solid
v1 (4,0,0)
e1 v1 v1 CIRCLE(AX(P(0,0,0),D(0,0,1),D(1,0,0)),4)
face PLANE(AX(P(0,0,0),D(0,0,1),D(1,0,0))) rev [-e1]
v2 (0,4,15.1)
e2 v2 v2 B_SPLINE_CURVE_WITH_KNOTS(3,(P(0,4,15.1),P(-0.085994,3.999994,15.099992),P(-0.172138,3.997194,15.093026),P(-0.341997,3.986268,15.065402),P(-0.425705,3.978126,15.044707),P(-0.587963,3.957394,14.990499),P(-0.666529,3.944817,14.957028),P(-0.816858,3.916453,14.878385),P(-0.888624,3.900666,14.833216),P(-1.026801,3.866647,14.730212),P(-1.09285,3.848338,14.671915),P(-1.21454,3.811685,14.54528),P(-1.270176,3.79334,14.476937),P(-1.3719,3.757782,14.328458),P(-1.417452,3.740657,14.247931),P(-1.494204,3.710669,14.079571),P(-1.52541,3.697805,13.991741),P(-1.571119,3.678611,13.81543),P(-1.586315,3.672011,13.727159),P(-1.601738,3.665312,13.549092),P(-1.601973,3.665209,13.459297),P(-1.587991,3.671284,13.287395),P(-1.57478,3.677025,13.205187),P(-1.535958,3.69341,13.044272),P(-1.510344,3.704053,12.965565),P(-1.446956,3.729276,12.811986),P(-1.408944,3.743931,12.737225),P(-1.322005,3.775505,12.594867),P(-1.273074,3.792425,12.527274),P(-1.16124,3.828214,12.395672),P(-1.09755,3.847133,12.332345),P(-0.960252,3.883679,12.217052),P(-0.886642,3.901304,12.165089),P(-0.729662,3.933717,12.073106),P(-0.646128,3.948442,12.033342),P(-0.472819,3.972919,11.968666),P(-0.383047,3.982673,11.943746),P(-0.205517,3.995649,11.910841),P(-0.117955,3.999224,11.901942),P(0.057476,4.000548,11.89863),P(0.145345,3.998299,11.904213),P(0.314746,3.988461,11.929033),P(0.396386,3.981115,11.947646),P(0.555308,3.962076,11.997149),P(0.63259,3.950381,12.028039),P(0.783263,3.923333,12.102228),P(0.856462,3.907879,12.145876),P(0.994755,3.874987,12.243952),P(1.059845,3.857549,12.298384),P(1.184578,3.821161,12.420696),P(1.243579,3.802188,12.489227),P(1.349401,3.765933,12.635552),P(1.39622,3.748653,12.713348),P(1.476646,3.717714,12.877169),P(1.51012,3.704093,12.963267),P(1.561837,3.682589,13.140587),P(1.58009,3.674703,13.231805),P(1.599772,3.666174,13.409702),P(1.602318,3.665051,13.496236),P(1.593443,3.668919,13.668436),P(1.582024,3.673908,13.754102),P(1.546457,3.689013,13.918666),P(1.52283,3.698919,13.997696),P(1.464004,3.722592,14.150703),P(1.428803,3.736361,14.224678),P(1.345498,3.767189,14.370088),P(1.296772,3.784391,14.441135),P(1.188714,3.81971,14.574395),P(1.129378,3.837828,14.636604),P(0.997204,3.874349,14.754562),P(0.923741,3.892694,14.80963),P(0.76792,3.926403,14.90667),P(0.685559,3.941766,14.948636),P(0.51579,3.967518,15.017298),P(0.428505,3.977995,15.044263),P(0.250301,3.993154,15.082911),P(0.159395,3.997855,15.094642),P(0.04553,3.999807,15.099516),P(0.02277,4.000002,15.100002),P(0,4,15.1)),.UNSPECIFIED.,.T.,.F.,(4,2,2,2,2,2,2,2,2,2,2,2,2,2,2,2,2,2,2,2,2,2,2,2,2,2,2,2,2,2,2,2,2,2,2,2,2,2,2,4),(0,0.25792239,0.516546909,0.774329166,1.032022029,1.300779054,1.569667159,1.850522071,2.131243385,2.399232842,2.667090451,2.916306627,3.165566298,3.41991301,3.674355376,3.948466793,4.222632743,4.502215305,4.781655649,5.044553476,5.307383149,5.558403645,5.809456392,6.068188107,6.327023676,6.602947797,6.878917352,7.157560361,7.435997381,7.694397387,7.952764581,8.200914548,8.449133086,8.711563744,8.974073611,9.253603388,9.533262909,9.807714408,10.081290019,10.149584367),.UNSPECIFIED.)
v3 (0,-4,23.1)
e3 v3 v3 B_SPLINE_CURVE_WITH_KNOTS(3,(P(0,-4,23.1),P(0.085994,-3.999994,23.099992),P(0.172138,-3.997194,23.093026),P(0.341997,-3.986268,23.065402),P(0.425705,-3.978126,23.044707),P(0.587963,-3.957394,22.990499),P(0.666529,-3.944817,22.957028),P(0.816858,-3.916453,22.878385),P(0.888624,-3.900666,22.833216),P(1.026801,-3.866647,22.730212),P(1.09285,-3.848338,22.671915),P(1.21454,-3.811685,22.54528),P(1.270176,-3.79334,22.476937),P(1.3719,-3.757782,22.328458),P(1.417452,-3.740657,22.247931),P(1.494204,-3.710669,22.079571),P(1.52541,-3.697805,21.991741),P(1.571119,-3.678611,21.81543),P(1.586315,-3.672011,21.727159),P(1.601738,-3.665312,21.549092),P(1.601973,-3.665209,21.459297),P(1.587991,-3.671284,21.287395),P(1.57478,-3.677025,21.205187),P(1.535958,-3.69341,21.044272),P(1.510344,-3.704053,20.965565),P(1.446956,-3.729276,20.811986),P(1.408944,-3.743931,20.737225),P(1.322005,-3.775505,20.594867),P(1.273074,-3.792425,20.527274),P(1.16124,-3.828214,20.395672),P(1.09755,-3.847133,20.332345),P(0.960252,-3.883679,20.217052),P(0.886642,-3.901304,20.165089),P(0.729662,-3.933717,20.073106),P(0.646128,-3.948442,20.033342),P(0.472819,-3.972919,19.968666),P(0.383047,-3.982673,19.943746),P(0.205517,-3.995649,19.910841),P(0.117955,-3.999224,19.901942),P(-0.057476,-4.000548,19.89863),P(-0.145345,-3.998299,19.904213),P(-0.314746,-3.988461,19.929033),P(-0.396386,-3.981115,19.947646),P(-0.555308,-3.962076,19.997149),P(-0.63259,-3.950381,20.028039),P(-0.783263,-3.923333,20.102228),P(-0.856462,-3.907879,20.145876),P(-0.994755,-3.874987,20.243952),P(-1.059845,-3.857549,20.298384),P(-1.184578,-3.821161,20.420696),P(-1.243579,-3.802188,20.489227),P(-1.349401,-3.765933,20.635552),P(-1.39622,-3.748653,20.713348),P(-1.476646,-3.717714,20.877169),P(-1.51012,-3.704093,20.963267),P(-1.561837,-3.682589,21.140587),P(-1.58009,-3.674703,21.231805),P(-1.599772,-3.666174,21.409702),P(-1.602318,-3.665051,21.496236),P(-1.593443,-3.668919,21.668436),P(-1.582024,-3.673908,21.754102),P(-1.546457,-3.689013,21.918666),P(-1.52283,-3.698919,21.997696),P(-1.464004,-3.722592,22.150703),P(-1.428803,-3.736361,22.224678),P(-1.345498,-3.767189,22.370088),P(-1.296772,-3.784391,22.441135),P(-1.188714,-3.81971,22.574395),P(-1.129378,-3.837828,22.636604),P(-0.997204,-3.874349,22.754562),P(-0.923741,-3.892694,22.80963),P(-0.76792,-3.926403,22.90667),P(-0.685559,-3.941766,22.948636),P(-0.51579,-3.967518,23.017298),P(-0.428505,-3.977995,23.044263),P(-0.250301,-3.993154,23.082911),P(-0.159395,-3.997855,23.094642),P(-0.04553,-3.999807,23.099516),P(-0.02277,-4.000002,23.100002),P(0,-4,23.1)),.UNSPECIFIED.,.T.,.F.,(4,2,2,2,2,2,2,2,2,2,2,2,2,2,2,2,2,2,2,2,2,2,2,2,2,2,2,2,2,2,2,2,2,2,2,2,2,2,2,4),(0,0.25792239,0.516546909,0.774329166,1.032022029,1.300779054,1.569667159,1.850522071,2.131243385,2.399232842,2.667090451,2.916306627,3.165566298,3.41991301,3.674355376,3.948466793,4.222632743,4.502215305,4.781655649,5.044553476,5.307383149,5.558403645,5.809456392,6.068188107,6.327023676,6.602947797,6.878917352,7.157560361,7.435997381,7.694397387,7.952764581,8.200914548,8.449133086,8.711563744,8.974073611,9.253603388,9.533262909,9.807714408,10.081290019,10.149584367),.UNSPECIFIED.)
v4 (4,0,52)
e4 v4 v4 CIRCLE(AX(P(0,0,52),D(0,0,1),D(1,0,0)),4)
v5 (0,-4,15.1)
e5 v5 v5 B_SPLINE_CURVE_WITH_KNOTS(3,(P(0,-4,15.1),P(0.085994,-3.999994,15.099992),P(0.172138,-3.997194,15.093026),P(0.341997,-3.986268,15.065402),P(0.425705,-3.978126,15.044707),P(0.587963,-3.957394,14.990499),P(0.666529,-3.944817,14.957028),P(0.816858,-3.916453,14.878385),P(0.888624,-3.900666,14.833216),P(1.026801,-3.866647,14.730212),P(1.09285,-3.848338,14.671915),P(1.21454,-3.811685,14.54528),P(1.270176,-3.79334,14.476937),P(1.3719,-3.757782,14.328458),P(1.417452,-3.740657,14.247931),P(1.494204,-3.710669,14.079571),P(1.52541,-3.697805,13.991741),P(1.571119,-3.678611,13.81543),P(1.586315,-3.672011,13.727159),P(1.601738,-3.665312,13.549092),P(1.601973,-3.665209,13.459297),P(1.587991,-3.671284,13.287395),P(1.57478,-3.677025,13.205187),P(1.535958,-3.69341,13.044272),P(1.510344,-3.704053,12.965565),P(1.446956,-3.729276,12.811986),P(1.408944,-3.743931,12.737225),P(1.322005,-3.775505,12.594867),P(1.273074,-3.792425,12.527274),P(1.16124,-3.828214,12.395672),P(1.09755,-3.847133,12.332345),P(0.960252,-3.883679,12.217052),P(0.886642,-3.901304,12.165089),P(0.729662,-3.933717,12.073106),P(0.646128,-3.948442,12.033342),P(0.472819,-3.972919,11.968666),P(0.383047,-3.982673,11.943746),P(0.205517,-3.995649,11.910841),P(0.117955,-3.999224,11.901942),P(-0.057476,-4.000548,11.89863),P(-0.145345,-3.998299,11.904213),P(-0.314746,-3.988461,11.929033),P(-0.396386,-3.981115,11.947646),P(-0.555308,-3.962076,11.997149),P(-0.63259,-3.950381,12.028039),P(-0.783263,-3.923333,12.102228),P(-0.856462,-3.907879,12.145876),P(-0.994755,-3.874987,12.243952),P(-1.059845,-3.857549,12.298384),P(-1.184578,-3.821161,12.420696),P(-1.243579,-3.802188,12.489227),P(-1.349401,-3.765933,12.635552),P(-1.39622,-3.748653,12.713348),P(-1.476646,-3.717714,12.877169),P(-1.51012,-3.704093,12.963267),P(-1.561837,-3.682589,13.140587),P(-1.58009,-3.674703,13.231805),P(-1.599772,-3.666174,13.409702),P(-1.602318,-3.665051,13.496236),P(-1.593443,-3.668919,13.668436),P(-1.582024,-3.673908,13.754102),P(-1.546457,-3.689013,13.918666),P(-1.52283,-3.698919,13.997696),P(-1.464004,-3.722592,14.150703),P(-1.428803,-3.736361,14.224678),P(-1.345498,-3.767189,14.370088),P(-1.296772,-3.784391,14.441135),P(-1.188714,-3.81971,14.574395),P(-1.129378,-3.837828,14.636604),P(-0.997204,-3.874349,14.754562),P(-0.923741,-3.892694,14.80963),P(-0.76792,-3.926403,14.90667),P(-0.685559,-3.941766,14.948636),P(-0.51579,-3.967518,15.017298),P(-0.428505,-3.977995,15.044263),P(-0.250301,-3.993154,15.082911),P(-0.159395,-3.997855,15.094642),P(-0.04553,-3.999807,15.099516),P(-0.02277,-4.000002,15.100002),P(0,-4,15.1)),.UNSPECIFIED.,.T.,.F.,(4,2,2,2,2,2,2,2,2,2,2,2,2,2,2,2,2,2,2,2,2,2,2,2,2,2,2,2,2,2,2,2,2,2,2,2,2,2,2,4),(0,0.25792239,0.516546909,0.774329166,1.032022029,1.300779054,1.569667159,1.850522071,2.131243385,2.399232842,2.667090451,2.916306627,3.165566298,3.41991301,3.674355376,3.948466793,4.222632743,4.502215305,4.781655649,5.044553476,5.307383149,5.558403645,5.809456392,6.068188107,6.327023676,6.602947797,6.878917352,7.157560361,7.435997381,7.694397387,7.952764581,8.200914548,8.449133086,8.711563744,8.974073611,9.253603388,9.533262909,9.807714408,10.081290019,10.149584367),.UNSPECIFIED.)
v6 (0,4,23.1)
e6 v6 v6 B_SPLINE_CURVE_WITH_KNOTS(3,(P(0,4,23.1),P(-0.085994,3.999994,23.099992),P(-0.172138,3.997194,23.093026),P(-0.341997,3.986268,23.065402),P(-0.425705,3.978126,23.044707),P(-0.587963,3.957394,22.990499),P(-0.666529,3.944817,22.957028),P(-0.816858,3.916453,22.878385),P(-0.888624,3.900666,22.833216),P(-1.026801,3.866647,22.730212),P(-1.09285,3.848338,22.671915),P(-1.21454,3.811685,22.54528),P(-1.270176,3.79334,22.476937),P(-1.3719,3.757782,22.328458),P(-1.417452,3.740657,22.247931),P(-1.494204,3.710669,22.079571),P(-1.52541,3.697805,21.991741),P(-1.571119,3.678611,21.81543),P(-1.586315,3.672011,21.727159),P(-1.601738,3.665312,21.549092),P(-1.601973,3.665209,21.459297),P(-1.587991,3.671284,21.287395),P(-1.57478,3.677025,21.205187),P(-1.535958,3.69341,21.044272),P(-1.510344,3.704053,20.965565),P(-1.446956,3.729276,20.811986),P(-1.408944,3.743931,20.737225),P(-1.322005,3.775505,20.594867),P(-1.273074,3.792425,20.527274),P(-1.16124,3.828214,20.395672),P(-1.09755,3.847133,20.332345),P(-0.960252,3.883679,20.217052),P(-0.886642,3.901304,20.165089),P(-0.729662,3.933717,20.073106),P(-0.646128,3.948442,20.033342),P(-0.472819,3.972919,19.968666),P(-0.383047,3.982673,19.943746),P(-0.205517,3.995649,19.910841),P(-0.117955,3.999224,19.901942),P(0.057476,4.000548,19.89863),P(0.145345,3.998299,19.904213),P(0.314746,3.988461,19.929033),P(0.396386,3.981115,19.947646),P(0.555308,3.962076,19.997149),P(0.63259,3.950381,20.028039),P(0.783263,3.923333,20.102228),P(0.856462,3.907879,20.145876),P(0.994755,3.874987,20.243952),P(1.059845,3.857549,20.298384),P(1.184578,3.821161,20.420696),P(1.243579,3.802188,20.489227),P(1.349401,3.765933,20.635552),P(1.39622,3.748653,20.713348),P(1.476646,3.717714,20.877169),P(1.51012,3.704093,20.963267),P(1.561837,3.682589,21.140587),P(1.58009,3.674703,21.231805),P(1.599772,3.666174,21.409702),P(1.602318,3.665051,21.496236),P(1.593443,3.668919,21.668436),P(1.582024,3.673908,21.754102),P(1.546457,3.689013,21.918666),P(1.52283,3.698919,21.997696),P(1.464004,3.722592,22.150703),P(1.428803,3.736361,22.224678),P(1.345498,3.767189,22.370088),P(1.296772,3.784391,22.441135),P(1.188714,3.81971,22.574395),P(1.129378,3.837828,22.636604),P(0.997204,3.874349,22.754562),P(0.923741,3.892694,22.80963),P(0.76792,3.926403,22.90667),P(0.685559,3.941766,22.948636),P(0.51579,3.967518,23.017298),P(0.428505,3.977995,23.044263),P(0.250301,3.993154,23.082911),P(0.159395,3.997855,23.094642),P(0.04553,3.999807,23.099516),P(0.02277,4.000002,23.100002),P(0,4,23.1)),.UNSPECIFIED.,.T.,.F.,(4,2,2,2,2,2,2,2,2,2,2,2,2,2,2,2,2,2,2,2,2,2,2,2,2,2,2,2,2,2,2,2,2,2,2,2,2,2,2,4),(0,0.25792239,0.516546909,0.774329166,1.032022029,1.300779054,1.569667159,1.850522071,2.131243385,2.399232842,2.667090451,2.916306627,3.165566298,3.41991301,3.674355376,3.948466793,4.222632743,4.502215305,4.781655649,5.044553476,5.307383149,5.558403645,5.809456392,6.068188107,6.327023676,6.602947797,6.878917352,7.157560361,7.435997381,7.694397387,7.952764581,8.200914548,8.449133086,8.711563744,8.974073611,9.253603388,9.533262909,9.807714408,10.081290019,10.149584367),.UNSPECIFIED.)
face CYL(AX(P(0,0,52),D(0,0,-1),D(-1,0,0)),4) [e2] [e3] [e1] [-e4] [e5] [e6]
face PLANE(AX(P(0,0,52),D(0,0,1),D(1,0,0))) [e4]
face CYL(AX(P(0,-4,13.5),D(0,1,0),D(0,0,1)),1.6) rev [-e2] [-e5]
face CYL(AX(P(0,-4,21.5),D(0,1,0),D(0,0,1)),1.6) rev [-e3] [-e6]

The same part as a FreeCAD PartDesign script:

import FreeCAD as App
import Part
import Sketcher

V = App.Vector
Q = App.Units.Quantity

doc = App.newDocument("Part")
body = doc.addObject("PartDesign::Body", "Body")

# Sketch on XY plane
sketch1 = body.newObject("Sketcher::SketchObject", "Sketch")
sketch1.AttachmentSupport = (doc.getObject("XY_Plane"), [""])
sketch1.MapMode = "FlatFace"
sketch1.addGeometry(Part.Circle(V(0, 0, 0), V(0, 0, 1), 4), False)
sketch1.addConstraint([
    Sketcher.Constraint("Coincident", 0, 3, -1, 1),
    Sketcher.Constraint("Diameter", 0, Q("8 mm")),
])
pad1 = body.newObject("PartDesign::Pad", "Pad")
pad1.Profile = sketch1
pad1.Length = 52

# Sketch on XZ plane
sketch2 = body.newObject("Sketcher::SketchObject", "Sketch001")
sketch2.AttachmentSupport = (doc.getObject("XZ_Plane"), [""])
sketch2.MapMode = "FlatFace"
sketch2.AttachmentOffset = App.Placement(V(0, 0, -4), App.Rotation())
sketch2.addGeometry([
    Part.Circle(V(0, 13.5, 0), V(0, 0, 1), 1.6),
    Part.Circle(V(0, 21.5, 0), V(0, 0, 1), 1.6),
], False)
sketch2.addConstraint([
    Sketcher.Constraint("Equal", 0, 1),
    Sketcher.Constraint("PointOnObject", 0, 3, -2),
    Sketcher.Constraint("PointOnObject", 1, 3, -2),
    Sketcher.Constraint("Diameter", 0, Q("3.2 mm")),
    Sketcher.Constraint("DistanceY", 0, 3, 1, 3, Q("8 mm")),
    Sketcher.Constraint("DistanceY", -1, 1, 0, 3, Q("13.5 mm")),
])
pocket1 = body.newObject("PartDesign::Pocket", "Pocket")
pocket1.Profile = sketch2
pocket1.Type = "ThroughAll"
pocket1.Reversed = True

doc.recompute()
